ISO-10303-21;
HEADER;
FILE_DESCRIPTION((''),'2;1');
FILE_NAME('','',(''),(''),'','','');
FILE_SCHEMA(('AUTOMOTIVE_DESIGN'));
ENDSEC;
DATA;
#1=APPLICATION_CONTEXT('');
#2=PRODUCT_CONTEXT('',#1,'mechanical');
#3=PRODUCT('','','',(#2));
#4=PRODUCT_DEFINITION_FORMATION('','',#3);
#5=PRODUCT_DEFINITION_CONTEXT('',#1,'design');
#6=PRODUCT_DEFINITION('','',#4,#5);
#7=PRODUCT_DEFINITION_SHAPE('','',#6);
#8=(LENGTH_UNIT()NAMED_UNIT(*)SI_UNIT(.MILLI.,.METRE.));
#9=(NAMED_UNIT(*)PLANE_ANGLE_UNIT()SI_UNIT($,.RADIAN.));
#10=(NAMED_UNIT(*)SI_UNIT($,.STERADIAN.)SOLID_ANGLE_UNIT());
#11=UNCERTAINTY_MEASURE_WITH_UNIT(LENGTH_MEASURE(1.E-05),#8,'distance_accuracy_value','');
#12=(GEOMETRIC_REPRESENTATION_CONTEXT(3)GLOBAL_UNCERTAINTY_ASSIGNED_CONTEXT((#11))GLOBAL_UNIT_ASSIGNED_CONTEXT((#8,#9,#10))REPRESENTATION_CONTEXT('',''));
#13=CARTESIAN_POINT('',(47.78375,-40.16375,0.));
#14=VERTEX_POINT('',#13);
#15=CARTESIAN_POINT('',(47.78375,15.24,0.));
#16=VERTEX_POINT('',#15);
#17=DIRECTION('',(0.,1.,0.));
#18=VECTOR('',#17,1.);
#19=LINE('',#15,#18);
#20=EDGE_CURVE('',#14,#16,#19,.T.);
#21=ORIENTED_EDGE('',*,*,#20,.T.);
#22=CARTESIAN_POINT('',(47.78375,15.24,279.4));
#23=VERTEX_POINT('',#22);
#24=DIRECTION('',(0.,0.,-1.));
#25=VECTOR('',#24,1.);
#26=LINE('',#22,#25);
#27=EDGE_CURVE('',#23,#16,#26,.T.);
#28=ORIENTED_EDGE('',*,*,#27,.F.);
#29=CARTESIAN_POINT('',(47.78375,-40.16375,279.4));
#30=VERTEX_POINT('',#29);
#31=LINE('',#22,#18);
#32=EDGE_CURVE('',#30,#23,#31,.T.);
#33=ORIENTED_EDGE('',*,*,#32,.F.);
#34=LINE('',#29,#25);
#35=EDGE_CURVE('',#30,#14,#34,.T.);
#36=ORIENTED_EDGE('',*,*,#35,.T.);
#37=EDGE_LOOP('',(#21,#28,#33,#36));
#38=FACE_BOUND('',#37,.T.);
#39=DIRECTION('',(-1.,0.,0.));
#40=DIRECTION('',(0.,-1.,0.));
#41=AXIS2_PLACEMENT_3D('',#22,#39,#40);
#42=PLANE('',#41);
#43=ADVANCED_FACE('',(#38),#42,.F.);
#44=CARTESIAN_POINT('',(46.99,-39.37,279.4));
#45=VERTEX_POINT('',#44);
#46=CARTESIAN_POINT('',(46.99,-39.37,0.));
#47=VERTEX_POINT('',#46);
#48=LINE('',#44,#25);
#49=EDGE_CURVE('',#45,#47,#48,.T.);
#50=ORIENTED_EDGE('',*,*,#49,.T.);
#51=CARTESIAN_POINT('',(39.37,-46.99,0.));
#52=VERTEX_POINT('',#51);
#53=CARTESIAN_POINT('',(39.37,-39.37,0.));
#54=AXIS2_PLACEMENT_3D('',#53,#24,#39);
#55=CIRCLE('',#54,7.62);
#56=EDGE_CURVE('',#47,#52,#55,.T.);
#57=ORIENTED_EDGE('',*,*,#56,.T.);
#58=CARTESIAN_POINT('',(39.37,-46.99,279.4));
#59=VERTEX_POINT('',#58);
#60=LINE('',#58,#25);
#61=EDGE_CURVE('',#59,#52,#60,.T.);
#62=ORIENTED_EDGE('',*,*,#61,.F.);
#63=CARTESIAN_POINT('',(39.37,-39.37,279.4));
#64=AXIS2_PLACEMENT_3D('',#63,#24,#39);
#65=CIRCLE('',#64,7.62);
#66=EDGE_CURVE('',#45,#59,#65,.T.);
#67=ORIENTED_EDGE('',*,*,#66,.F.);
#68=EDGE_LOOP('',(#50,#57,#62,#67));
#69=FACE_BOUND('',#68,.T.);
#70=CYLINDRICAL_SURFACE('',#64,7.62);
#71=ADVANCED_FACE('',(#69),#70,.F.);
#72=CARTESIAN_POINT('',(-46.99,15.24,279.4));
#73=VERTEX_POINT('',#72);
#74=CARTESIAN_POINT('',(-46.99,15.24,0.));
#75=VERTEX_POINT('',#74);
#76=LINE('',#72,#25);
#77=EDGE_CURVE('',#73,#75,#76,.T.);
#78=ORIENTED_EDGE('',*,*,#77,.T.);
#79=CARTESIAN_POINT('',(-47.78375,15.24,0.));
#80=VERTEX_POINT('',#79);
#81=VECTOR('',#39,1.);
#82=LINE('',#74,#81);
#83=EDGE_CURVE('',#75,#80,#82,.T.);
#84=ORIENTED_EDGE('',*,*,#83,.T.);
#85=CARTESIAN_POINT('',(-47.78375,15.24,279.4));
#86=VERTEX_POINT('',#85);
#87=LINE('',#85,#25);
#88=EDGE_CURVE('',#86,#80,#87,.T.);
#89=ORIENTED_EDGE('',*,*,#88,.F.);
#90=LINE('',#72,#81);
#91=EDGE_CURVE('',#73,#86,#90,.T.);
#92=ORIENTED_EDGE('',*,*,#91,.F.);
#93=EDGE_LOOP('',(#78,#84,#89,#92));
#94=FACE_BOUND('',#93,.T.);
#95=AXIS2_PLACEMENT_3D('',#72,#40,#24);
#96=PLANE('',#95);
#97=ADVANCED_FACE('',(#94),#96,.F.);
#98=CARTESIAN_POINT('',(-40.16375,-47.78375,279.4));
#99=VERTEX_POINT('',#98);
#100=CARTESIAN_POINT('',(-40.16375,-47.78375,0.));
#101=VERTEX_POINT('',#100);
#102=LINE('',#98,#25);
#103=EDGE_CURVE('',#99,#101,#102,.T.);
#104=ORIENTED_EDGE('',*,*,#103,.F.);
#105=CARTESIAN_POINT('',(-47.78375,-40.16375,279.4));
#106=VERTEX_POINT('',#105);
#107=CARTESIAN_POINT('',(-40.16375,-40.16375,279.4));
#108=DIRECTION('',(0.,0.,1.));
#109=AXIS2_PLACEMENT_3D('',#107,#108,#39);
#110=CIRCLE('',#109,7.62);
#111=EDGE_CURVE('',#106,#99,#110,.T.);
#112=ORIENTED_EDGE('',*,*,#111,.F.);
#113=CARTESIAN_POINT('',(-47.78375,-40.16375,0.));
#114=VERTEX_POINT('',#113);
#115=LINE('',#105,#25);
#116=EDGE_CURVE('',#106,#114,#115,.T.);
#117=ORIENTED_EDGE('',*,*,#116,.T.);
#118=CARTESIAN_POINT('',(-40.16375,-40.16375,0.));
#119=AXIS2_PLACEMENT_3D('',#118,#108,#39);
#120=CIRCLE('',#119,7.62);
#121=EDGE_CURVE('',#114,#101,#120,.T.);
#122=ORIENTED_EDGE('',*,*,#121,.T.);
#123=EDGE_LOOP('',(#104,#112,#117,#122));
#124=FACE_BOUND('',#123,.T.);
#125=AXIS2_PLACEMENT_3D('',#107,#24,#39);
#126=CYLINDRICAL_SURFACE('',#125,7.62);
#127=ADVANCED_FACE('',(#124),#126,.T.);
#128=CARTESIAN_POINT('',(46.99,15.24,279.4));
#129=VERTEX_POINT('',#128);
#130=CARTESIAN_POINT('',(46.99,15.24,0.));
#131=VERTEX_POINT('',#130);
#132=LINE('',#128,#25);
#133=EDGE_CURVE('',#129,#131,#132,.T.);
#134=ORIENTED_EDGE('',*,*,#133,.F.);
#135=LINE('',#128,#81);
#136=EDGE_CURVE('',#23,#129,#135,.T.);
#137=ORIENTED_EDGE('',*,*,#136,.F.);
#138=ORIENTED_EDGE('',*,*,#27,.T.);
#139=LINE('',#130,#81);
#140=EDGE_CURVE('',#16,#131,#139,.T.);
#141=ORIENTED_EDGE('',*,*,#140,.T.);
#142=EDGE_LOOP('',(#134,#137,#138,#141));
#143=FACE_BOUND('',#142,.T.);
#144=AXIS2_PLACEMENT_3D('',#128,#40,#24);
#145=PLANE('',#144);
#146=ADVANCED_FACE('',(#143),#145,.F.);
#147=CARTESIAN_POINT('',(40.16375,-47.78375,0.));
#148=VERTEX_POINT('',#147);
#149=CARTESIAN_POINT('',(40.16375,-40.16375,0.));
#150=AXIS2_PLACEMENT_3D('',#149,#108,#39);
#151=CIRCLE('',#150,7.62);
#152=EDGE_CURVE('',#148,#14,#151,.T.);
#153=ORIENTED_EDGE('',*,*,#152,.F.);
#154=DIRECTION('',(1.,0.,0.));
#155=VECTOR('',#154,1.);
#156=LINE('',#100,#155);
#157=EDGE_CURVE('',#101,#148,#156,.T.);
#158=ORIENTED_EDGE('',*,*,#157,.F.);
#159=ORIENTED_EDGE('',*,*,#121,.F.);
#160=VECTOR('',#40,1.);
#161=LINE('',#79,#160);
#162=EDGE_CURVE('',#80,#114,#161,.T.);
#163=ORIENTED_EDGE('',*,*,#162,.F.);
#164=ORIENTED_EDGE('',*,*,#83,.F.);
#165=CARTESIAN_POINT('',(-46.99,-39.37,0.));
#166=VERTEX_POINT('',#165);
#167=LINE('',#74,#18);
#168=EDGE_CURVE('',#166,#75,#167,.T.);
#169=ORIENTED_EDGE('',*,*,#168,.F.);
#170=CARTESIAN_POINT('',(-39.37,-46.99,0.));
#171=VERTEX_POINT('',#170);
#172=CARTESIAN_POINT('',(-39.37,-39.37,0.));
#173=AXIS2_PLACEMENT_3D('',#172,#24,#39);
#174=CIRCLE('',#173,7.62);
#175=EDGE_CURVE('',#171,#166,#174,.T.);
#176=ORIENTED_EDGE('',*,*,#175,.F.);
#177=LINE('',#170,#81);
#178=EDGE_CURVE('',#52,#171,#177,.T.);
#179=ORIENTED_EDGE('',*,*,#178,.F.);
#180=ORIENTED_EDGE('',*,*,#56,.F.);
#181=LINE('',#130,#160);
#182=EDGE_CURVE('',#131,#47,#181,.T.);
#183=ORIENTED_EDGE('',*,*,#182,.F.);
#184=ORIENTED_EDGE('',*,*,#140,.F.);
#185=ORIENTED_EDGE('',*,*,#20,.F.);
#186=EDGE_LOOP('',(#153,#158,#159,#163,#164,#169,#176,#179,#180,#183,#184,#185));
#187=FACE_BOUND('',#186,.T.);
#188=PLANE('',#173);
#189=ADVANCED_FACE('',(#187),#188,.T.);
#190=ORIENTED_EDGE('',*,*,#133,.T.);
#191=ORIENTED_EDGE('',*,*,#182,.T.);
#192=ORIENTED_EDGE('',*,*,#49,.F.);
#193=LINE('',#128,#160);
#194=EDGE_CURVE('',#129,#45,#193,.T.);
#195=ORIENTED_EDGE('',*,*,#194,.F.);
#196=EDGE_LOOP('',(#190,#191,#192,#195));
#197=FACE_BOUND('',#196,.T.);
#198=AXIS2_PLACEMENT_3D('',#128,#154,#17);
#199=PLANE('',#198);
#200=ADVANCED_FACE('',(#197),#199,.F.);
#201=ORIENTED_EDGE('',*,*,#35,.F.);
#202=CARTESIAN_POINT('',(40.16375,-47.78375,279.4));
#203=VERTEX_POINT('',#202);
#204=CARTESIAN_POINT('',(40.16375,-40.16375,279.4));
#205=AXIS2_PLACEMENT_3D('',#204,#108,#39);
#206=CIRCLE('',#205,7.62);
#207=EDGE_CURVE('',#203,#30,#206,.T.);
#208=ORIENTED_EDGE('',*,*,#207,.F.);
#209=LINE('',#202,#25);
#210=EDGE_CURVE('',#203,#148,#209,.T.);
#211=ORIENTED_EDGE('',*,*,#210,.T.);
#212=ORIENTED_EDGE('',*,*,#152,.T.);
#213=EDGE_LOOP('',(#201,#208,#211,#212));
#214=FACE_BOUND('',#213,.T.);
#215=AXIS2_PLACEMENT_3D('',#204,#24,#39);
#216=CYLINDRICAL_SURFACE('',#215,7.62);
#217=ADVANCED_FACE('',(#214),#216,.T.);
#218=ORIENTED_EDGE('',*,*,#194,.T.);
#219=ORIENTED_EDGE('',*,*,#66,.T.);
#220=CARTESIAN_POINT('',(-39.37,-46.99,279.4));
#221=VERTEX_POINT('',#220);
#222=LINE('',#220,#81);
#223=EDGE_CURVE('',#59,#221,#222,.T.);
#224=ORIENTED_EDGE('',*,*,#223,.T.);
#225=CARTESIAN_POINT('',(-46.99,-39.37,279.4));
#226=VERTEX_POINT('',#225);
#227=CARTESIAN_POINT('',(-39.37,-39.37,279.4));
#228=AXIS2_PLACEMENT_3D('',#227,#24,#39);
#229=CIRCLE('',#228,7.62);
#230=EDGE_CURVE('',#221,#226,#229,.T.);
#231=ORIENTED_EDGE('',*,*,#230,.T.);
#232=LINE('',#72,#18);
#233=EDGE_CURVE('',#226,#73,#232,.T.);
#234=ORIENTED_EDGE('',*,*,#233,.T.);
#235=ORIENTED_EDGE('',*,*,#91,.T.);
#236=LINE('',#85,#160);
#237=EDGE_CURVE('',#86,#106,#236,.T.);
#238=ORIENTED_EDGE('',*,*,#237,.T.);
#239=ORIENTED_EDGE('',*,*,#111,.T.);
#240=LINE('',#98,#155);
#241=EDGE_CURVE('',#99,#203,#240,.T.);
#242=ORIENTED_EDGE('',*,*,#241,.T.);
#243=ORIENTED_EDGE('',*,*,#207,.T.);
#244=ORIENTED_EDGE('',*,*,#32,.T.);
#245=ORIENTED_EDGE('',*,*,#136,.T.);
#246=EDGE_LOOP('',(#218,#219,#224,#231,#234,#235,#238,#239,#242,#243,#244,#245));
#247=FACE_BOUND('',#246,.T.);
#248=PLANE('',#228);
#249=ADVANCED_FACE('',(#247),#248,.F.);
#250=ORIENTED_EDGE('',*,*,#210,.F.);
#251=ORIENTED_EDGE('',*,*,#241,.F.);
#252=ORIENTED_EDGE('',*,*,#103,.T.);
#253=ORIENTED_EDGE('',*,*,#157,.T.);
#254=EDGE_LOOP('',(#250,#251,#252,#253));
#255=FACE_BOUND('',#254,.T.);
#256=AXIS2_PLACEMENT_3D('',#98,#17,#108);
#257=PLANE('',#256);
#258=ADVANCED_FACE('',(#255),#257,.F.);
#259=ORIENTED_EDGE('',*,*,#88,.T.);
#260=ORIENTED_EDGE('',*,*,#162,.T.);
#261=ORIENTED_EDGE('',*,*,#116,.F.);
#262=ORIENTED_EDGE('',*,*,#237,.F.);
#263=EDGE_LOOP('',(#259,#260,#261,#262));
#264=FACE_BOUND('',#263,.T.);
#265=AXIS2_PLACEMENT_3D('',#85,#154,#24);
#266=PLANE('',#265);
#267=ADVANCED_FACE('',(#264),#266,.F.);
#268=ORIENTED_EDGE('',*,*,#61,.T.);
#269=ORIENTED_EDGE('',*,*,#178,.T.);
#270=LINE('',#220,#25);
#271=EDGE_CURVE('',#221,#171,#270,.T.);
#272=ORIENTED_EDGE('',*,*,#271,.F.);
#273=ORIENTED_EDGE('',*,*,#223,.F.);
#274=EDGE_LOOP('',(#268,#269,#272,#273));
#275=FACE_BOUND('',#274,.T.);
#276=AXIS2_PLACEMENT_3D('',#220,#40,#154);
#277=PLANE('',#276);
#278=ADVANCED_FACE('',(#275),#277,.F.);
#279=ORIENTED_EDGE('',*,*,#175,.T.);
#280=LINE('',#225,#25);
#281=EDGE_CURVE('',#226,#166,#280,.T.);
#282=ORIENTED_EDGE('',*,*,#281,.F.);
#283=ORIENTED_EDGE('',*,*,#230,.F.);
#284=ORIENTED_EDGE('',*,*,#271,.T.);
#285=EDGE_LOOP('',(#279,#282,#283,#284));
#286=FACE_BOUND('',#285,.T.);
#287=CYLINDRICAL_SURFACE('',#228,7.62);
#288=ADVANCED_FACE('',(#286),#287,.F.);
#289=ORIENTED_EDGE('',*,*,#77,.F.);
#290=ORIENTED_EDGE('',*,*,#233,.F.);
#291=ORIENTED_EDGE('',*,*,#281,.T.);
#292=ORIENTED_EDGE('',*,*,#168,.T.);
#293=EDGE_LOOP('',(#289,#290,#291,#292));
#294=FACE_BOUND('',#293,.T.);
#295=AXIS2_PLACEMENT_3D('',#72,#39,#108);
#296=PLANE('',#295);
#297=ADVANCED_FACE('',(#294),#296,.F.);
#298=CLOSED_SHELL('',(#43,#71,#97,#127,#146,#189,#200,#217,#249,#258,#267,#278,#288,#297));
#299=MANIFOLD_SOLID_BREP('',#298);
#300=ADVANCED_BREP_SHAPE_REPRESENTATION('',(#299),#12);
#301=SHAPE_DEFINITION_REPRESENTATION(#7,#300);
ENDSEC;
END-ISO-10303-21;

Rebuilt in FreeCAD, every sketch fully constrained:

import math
import FreeCAD as App
import Part
import Sketcher
from FreeCAD import Vector
Q = App.Units.Quantity

doc = App.newDocument("Part")
body = doc.addObject("PartDesign::Body", "Body")

# Sketch on XY plane
sketch1 = body.newObject("Sketcher::SketchObject", "Sketch")
sketch1.AttachmentSupport = (doc.getObject("XY_Plane"), [""])
sketch1.MapMode = "FlatFace"
sketch1.addGeometry([
    Part.LineSegment(Vector(47.8, 15.2, 0), Vector(47, 15.2, 0)),  # 0
    Part.LineSegment(Vector(47, 15.2, 0), Vector(47, -39.4, 0)),  # 1
    Part.ArcOfCircle(Part.Circle(Vector(39.4, -39.4, 0), Vector(0, 0, 1), 7.6), math.radians(-90), math.radians(0)),  # 2
    Part.LineSegment(Vector(39.4, -47, 0), Vector(-39.4, -47, 0)),  # 3
    Part.ArcOfCircle(Part.Circle(Vector(-39.4, -39.4, 0), Vector(0, 0, 1), 7.6), math.radians(180), math.radians(270)),  # 4
    Part.LineSegment(Vector(-47, -39.4, 0), Vector(-47, 15.2, 0)),  # 5
    Part.LineSegment(Vector(-47, 15.2, 0), Vector(-47.8, 15.2, 0)),  # 6
    Part.LineSegment(Vector(-47.8, 15.2, 0), Vector(-47.8, -40.2, 0)),  # 7
    Part.ArcOfCircle(Part.Circle(Vector(-40.2, -40.2, 0), Vector(0, 0, 1), 7.6), math.radians(180), math.radians(270)),  # 8
    Part.LineSegment(Vector(-40.2, -47.8, 0), Vector(40.2, -47.8, 0)),  # 9
    Part.ArcOfCircle(Part.Circle(Vector(40.2, -40.2, 0), Vector(0, 0, 1), 7.6), math.radians(-90), math.radians(0)),  # 10
    Part.LineSegment(Vector(47.8, -40.2, 0), Vector(47.8, 15.2, 0)),  # 11
], False)
sketch1.addConstraint([
    Sketcher.Constraint("Coincident", 0, 2, 1, 1),
    Sketcher.Constraint("Tangent", 1, 2, 2, 2),
    Sketcher.Constraint("Tangent", 2, 1, 3, 1),
    Sketcher.Constraint("Tangent", 3, 2, 4, 2),
    Sketcher.Constraint("Tangent", 4, 1, 5, 1),
    Sketcher.Constraint("Coincident", 5, 2, 6, 1),
    Sketcher.Constraint("Coincident", 6, 2, 7, 1),
    Sketcher.Constraint("Tangent", 7, 2, 8, 1),
    Sketcher.Constraint("Tangent", 8, 2, 9, 1),
    Sketcher.Constraint("Tangent", 9, 2, 10, 1),
    Sketcher.Constraint("Tangent", 10, 2, 11, 1),
    Sketcher.Constraint("Coincident", 11, 2, 0, 1),
    Sketcher.Constraint("Horizontal", 0),
    Sketcher.Constraint("Vertical", 1),
    Sketcher.Constraint("Horizontal", 3),
    Sketcher.Constraint("Vertical", 5),
    Sketcher.Constraint("Horizontal", 6),
    Sketcher.Constraint("Vertical", 7),
    Sketcher.Constraint("Horizontal", 9),
    Sketcher.Constraint("Vertical", 11),
    Sketcher.Constraint("Equal", 2, 4),
    Sketcher.Constraint("Equal", 4, 8),
    Sketcher.Constraint("Equal", 8, 10),
    Sketcher.Constraint("Symmetric", 0, 2, 5, 2, -2),
    Sketcher.Constraint("Equal", 0, 6),
    Sketcher.Constraint("Radius", 2, Q("0.3 in")),
    Sketcher.Constraint("DistanceX", 3, 2, 3, 1, Q("3.1 in")),
    Sketcher.Constraint("DistanceY", 1, 2, 1, 1, Q("2.15 in")),
    Sketcher.Constraint("DistanceY", -1, 1, 0, 2, Q("0.6 in")),
    Sketcher.Constraint("DistanceX", 0, 2, 0, 1, Q("0.03125 in")),
    Sketcher.Constraint("DistanceY", 8, 3, 4, 3, Q("0.03125 in")),
])
pad1 = body.newObject("PartDesign::Pad", "Pad")
pad1.Profile = sketch1
pad1.Length = Q("11 in")

doc.recompute()
